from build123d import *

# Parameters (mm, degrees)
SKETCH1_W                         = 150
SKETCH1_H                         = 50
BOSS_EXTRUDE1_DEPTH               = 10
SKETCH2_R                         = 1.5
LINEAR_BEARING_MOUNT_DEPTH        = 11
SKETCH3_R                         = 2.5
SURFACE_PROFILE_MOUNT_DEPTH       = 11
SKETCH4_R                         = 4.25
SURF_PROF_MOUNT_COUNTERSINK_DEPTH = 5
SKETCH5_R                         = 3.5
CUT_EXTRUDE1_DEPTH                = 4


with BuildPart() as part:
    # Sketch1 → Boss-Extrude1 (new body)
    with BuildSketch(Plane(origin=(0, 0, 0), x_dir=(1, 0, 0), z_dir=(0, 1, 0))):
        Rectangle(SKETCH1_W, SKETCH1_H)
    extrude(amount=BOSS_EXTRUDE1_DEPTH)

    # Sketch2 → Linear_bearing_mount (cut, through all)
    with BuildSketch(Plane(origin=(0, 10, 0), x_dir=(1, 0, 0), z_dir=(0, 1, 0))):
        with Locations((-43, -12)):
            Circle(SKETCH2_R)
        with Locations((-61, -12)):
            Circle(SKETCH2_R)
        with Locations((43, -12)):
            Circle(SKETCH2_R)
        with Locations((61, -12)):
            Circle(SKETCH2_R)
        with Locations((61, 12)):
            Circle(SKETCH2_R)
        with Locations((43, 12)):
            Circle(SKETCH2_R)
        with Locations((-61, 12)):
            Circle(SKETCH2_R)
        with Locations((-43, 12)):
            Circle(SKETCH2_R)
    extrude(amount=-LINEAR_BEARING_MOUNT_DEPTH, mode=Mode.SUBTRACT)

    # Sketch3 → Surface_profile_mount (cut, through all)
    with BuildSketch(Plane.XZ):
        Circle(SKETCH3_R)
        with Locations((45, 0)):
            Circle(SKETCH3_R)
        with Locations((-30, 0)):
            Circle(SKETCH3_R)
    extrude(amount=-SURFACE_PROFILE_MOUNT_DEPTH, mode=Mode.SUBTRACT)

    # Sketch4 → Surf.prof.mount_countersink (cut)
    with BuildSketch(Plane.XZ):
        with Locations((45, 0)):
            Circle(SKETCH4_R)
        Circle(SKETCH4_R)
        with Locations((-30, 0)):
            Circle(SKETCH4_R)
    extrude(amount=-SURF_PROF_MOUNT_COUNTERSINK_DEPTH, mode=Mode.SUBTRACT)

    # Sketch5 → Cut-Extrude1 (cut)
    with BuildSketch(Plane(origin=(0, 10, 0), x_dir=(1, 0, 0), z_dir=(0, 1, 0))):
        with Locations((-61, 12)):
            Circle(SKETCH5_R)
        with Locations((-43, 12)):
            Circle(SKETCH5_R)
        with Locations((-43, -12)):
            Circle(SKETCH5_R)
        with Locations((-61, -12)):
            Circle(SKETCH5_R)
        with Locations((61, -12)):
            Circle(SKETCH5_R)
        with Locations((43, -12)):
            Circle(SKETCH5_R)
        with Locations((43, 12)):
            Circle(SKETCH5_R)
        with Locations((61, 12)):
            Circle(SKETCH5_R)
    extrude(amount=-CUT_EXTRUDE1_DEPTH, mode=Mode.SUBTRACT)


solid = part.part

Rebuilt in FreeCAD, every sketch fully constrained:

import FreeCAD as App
import Part
import Sketcher
Q = App.Units.Quantity


def add_polygon(sketch, points):
    """Adds a closed chain of lines whose ends are joined by coincident constraints."""
    first, n = sketch.GeometryCount, len(points)
    for a, b in zip(points, points[1:] + points[:1]):
        sketch.addGeometry(Part.LineSegment(App.Vector(*a, 0), App.Vector(*b, 0)), False)
    for i in range(n):
        sketch.addConstraint(Sketcher.Constraint("Coincident", first + i, 2, first + (i + 1) % n, 1))

doc = App.newDocument("Part")
body = doc.addObject("PartDesign::Body", "Body")

# Sketch on XZ plane
sketch1 = doc.addObject("Sketcher::SketchObject", "Sketch")
body.addObject(sketch1)
sketch1.AttachmentSupport = (doc.XZ_Plane, [""])
sketch1.MapMode = "FlatFace"
add_polygon(sketch1, [(-75, -25), (-75, 25), (75, 25), (75, -25)])  # lines 0-3
sketch1.addConstraint([
    Sketcher.Constraint("Vertical", 0),
    Sketcher.Constraint("Horizontal", 1),
    Sketcher.Constraint("Vertical", 2),
    Sketcher.Constraint("Horizontal", 3),
    Sketcher.Constraint("Symmetric", 0, 2, 2, 2, -1, 1),
    Sketcher.Constraint("DistanceX", 1, 1, 1, 2, Q("150 mm")),
    Sketcher.Constraint("DistanceY", 0, 1, 0, 2, Q("50 mm")),
])
pad1 = doc.addObject("PartDesign::Pad", "Pad")
body.addObject(pad1)
pad1.Profile = sketch1
pad1.Length = 10
pad1.Reversed = True

# Sketch on XZ plane
sketch2 = doc.addObject("Sketcher::SketchObject", "Sketch001")
body.addObject(sketch2)
sketch2.AttachmentSupport = (doc.XZ_Plane, [""])
sketch2.MapMode = "FlatFace"
sketch2.AttachmentOffset = App.Placement(App.Vector(0, 0, -10), App.Rotation())
sketch2.addGeometry([
    Part.Circle(App.Vector(-43, 12, 0), App.Vector(0, 0, 1), 1.5),  # 0
    Part.Circle(App.Vector(-61, 12, 0), App.Vector(0, 0, 1), 1.5),  # 1
    Part.Circle(App.Vector(43, 12, 0), App.Vector(0, 0, 1), 1.5),  # 2
    Part.Circle(App.Vector(61, 12, 0), App.Vector(0, 0, 1), 1.5),  # 3
    Part.Circle(App.Vector(61, -12, 0), App.Vector(0, 0, 1), 1.5),  # 4
    Part.Circle(App.Vector(43, -12, 0), App.Vector(0, 0, 1), 1.5),  # 5
    Part.Circle(App.Vector(-61, -12, 0), App.Vector(0, 0, 1), 1.5),  # 6
    Part.Circle(App.Vector(-43, -12, 0), App.Vector(0, 0, 1), 1.5),  # 7
], False)
sketch2.addConstraint([
    Sketcher.Constraint("Equal", 0, 1),
    Sketcher.Constraint("Equal", 1, 2),
    Sketcher.Constraint("Equal", 2, 3),
    Sketcher.Constraint("Equal", 3, 4),
    Sketcher.Constraint("Equal", 4, 5),
    Sketcher.Constraint("Equal", 5, 6),
    Sketcher.Constraint("Equal", 6, 7),
    Sketcher.Constraint("Symmetric", 1, 3, 4, 3, -1, 1),
    Sketcher.Constraint("Symmetric", 0, 3, 5, 3, -1, 1),
    Sketcher.Constraint("Symmetric", 3, 3, 6, 3, -1, 1),
    Sketcher.Constraint("Symmetric", 2, 3, 7, 3, -1, 1),
    Sketcher.Constraint("Symmetric", 0, 3, 2, 3, -2),
    Sketcher.Constraint("Symmetric", 1, 3, 3, 3, -2),
    Sketcher.Constraint("Horizontal", 0, 3, 1, 3),
    Sketcher.Constraint("Diameter", 0, Q("3 mm")),
    Sketcher.Constraint("DistanceX", 0, 3, -1, 1, Q("43 mm")),
    Sketcher.Constraint("DistanceY", -1, 1, 0, 3, Q("12 mm")),
    Sketcher.Constraint("DistanceX", 1, 3, -1, 1, Q("61 mm")),
])
pocket1 = doc.addObject("PartDesign::Pocket", "Pocket")
body.addObject(pocket1)
pocket1.Profile = sketch2
pocket1.Type = "ThroughAll"
pocket1.Reversed = True

# Sketch on XZ plane
sketch3 = doc.addObject("Sketcher::SketchObject", "Sketch002")
body.addObject(sketch3)
sketch3.AttachmentSupport = (doc.XZ_Plane, [""])
sketch3.MapMode = "FlatFace"
sketch3.addGeometry([
    Part.Circle(App.Vector(0, 0, 0), App.Vector(0, 0, 1), 2.5),
    Part.Circle(App.Vector(45, 0, 0), App.Vector(0, 0, 1), 2.5),
    Part.Circle(App.Vector(-30, 0, 0), App.Vector(0, 0, 1), 2.5),
], False)
sketch3.addConstraint([
    Sketcher.Constraint("Coincident", 0, 3, -1, 1),
    Sketcher.Constraint("Equal", 0, 1),
    Sketcher.Constraint("Equal", 1, 2),
    Sketcher.Constraint("PointOnObject", 1, 3, -1),
    Sketcher.Constraint("PointOnObject", 2, 3, -1),
    Sketcher.Constraint("Diameter", 0, Q("5 mm")),
    Sketcher.Constraint("DistanceX", -1, 1, 1, 3, Q("45 mm")),
    Sketcher.Constraint("DistanceX", 2, 3, -1, 1, Q("30 mm")),
])
pocket2 = doc.addObject("PartDesign::Pocket", "Pocket001")
body.addObject(pocket2)
pocket2.Profile = sketch3
pocket2.Type = "ThroughAll"

# Sketch on XZ plane
sketch4 = doc.addObject("Sketcher::SketchObject", "Sketch003")
body.addObject(sketch4)
sketch4.AttachmentSupport = (doc.XZ_Plane, [""])
sketch4.MapMode = "FlatFace"
sketch4.addGeometry([
    Part.Circle(App.Vector(45, 0, 0), App.Vector(0, 0, 1), 4.2),
    Part.Circle(App.Vector(0, 0, 0), App.Vector(0, 0, 1), 4.2),
    Part.Circle(App.Vector(-30, 0, 0), App.Vector(0, 0, 1), 4.2),
], False)
sketch4.addConstraint([
    Sketcher.Constraint("Coincident", 1, 3, -1, 1),
    Sketcher.Constraint("Equal", 0, 1),
    Sketcher.Constraint("Equal", 1, 2),
    Sketcher.Constraint("PointOnObject", 0, 3, -1),
    Sketcher.Constraint("PointOnObject", 2, 3, -1),
    Sketcher.Constraint("Diameter", 0, Q("8.5 mm")),
    Sketcher.Constraint("DistanceX", -1, 1, 0, 3, Q("45 mm")),
    Sketcher.Constraint("DistanceX", 2, 3, -1, 1, Q("30 mm")),
])
pocket3 = doc.addObject("PartDesign::Pocket", "Pocket002")
body.addObject(pocket3)
pocket3.Profile = sketch4
pocket3.Length = 5

# Sketch on XZ plane
sketch5 = doc.addObject("Sketcher::SketchObject", "Sketch004")
body.addObject(sketch5)
sketch5.AttachmentSupport = (doc.XZ_Plane, [""])
sketch5.MapMode = "FlatFace"
sketch5.AttachmentOffset = App.Placement(App.Vector(0, 0, -10), App.Rotation())
sketch5.addGeometry([
    Part.Circle(App.Vector(-61, -12, 0), App.Vector(0, 0, 1), 3.5),  # 0
    Part.Circle(App.Vector(-43, -12, 0), App.Vector(0, 0, 1), 3.5),  # 1
    Part.Circle(App.Vector(-43, 12, 0), App.Vector(0, 0, 1), 3.5),  # 2
    Part.Circle(App.Vector(-61, 12, 0), App.Vector(0, 0, 1), 3.5),  # 3
    Part.Circle(App.Vector(61, 12, 0), App.Vector(0, 0, 1), 3.5),  # 4
    Part.Circle(App.Vector(43, 12, 0), App.Vector(0, 0, 1), 3.5),  # 5
    Part.Circle(App.Vector(43, -12, 0), App.Vector(0, 0, 1), 3.5),  # 6
    Part.Circle(App.Vector(61, -12, 0), App.Vector(0, 0, 1), 3.5),  # 7
], False)
sketch5.addConstraint([
    Sketcher.Constraint("Equal", 0, 1),
    Sketcher.Constraint("Equal", 1, 2),
    Sketcher.Constraint("Equal", 2, 3),
    Sketcher.Constraint("Equal", 3, 4),
    Sketcher.Constraint("Equal", 4, 5),
    Sketcher.Constraint("Equal", 5, 6),
    Sketcher.Constraint("Equal", 6, 7),
    Sketcher.Constraint("Symmetric", 0, 3, 4, 3, -1, 1),
    Sketcher.Constraint("Symmetric", 1, 3, 5, 3, -1, 1),
    Sketcher.Constraint("Symmetric", 2, 3, 6, 3, -1, 1),
    Sketcher.Constraint("Symmetric", 3, 3, 7, 3, -1, 1),
    Sketcher.Constraint("Symmetric", 3, 3, 4, 3, -2),
    Sketcher.Constraint("Symmetric", 2, 3, 5, 3, -2),
    Sketcher.Constraint("Horizontal", 0, 3, 1, 3),
    Sketcher.Constraint("Diameter", 0, Q("7 mm")),
    Sketcher.Constraint("DistanceX", 0, 3, -1, 1, Q("61 mm")),
    Sketcher.Constraint("DistanceY", 0, 3, -1, 1, Q("12 mm")),
    Sketcher.Constraint("DistanceX", 1, 3, -1, 1, Q("43 mm")),
])
pocket4 = doc.addObject("PartDesign::Pocket", "Pocket003")
body.addObject(pocket4)
pocket4.Profile = sketch5
pocket4.Length = 4
pocket4.Reversed = True

doc.recompute()
